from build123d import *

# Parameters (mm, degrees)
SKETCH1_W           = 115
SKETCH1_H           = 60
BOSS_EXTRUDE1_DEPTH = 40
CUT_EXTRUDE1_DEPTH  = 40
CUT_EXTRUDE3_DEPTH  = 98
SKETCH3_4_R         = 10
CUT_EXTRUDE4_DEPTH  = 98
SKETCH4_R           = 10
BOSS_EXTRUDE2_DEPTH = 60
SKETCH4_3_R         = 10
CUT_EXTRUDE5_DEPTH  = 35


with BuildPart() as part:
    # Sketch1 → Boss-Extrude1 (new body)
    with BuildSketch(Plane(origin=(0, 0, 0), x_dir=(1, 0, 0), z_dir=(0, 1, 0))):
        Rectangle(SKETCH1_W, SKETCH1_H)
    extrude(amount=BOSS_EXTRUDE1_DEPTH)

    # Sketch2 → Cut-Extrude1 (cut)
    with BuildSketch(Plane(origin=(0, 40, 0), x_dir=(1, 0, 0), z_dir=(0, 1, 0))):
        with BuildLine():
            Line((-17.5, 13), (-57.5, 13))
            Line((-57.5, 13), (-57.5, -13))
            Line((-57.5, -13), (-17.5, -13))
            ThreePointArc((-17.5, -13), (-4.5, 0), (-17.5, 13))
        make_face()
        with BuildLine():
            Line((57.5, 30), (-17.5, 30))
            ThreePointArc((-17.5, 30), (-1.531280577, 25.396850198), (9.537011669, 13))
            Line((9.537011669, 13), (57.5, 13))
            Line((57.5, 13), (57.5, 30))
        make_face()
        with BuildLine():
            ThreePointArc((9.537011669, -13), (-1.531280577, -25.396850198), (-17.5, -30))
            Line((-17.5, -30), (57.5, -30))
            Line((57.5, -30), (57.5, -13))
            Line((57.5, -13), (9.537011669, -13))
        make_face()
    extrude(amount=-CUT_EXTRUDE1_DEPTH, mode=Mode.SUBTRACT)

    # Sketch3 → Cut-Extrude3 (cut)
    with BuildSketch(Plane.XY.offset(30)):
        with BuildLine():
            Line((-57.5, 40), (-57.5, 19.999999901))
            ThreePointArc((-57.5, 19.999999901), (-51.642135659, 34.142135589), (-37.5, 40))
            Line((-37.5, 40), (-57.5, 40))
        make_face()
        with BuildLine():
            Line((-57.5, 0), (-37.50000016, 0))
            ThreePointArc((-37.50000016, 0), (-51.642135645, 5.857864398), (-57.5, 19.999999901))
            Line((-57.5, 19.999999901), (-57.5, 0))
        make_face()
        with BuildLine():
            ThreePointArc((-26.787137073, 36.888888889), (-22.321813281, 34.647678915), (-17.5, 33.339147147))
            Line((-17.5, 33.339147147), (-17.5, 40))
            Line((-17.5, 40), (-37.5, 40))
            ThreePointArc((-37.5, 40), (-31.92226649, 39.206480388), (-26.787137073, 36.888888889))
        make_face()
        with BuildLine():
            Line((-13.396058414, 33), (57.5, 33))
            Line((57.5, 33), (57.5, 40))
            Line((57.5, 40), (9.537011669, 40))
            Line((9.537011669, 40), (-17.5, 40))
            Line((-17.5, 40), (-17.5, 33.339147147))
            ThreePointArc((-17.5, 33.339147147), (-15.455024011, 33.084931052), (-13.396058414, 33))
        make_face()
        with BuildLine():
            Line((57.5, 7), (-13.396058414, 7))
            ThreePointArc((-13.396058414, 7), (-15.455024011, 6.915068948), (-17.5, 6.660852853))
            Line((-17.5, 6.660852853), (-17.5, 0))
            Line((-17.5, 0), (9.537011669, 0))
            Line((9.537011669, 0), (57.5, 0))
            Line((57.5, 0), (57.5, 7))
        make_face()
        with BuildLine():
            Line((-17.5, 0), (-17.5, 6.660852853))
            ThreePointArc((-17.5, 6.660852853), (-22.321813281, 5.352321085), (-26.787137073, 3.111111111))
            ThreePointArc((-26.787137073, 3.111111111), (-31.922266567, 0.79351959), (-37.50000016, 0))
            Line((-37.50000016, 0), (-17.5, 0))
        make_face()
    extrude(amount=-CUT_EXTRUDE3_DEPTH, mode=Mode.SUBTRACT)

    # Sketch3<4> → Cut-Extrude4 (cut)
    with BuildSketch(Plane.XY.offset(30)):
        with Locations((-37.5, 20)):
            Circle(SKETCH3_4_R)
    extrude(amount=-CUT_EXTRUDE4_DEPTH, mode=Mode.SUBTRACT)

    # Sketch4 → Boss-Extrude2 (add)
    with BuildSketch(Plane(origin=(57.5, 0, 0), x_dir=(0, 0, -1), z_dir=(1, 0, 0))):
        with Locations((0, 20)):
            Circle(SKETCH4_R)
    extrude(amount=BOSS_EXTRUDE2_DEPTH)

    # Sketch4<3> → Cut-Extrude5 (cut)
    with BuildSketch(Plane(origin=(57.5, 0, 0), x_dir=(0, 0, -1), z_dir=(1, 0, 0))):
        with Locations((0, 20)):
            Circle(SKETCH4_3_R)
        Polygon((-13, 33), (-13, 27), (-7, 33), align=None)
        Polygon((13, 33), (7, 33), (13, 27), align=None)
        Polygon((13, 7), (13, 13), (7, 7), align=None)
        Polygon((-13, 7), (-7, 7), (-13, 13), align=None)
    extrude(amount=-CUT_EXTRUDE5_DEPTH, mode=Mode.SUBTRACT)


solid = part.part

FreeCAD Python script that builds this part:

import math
import FreeCAD as App
import Part
import Sketcher
from FreeCAD import Vector

doc = App.newDocument("Part")
body = doc.addObject("PartDesign::Body", "Body")
body.AllowCompound = True

# Sketch on XZ plane
sketch1 = doc.addObject("Sketcher::SketchObject", "Sketch")
body.addObject(sketch1)
sketch1.AttachmentSupport = (doc.XZ_Plane, [""])
sketch1.MapMode = "FlatFace"
sketch1.addGeometry(Part.LineSegment(Vector(-58, -30, 0), Vector(-58, 30, 0)), False)
sketch1.addGeometry(Part.LineSegment(Vector(-58, 30, 0), Vector(58, 30, 0)), False)
sketch1.addGeometry(Part.LineSegment(Vector(58, 30, 0), Vector(58, -30, 0)), False)
sketch1.addGeometry(Part.LineSegment(Vector(58, -30, 0), Vector(-58, -30, 0)), False)
sketch1.addConstraint(Sketcher.Constraint("Coincident", 0, 2, 1, 1))
sketch1.addConstraint(Sketcher.Constraint("Coincident", 1, 2, 2, 1))
sketch1.addConstraint(Sketcher.Constraint("Coincident", 2, 2, 3, 1))
sketch1.addConstraint(Sketcher.Constraint("Coincident", 3, 2, 0, 1))
sketch1.addConstraint(Sketcher.Constraint("Vertical", 0))
sketch1.addConstraint(Sketcher.Constraint("Horizontal", 1))
sketch1.addConstraint(Sketcher.Constraint("Vertical", 2))
sketch1.addConstraint(Sketcher.Constraint("Horizontal", 3))
sketch1.addConstraint(Sketcher.Constraint("Symmetric", 0, 2, 2, 2, -1, 1))
sketch1.addConstraint(Sketcher.Constraint("DistanceX", 1, 1, 1, 2, 115.0))
sketch1.addConstraint(Sketcher.Constraint("DistanceY", 0, 1, 0, 2, 60.0))
pad1 = doc.addObject("PartDesign::Pad", "Pad")
body.addObject(pad1)
pad1.Profile = sketch1
pad1.Length = 40
pad1.Reversed = True

# Sketch on XZ plane
sketch2 = doc.addObject("Sketcher::SketchObject", "Sketch001")
body.addObject(sketch2)
sketch2.AttachmentSupport = (doc.XZ_Plane, [""])
sketch2.MapMode = "FlatFace"
sketch2.AttachmentOffset = App.Placement(Vector(0, 0, -40), App.Rotation())
sketch2.addGeometry(Part.LineSegment(Vector(-18, -13, 0), Vector(-58, -13, 0)), False)
sketch2.addGeometry(Part.LineSegment(Vector(-58, -13, 0), Vector(-58, 13, 0)), False)
sketch2.addGeometry(Part.LineSegment(Vector(-58, 13, 0), Vector(-18, 13, 0)), False)
sketch2.addGeometry(Part.ArcOfCircle(Part.Circle(Vector(-18, 0, 0), Vector(0, 0, 1), 13), math.radians(-90), math.radians(90)), False)
sketch2.addGeometry(Part.LineSegment(Vector(58, -30, 0), Vector(-18, -30, 0)), False)
sketch2.addGeometry(Part.ArcOfCircle(Part.Circle(Vector(-18, 0, 0), Vector(0, 0, 1), 30), math.radians(-90), math.radians(-26)), False)
sketch2.addGeometry(Part.LineSegment(Vector(10, -13, 0), Vector(58, -13, 0)), False)
sketch2.addGeometry(Part.LineSegment(Vector(58, -13, 0), Vector(58, -30, 0)), False)
sketch2.addGeometry(Part.ArcOfCircle(Part.Circle(Vector(-18, 0, 0), Vector(0, 0, 1), 30), math.radians(26), math.radians(90)), False)
sketch2.addGeometry(Part.LineSegment(Vector(-18, 30, 0), Vector(58, 30, 0)), False)
sketch2.addGeometry(Part.LineSegment(Vector(58, 30, 0), Vector(58, 13, 0)), False)
sketch2.addGeometry(Part.LineSegment(Vector(58, 13, 0), Vector(10, 13, 0)), False)
sketch2.addConstraint(Sketcher.Constraint("Coincident", 0, 2, 1, 1))
sketch2.addConstraint(Sketcher.Constraint("Coincident", 1, 2, 2, 1))
sketch2.addConstraint(Sketcher.Constraint("Tangent", 2, 2, 3, 2))
sketch2.addConstraint(Sketcher.Constraint("Tangent", 3, 1, 0, 1))
sketch2.addConstraint(Sketcher.Constraint("Tangent", 4, 2, 5, 1))
sketch2.addConstraint(Sketcher.Constraint("Coincident", 5, 2, 6, 1))
sketch2.addConstraint(Sketcher.Constraint("Coincident", 6, 2, 7, 1))
sketch2.addConstraint(Sketcher.Constraint("Coincident", 7, 2, 4, 1))
sketch2.addConstraint(Sketcher.Constraint("Tangent", 8, 2, 9, 1))
sketch2.addConstraint(Sketcher.Constraint("Coincident", 9, 2, 10, 1))
sketch2.addConstraint(Sketcher.Constraint("Coincident", 10, 2, 11, 1))
sketch2.addConstraint(Sketcher.Constraint("Coincident", 11, 2, 8, 1))
sketch2.addConstraint(Sketcher.Constraint("Horizontal", 0))
sketch2.addConstraint(Sketcher.Constraint("Vertical", 1))
sketch2.addConstraint(Sketcher.Constraint("Horizontal", 2))
sketch2.addConstraint(Sketcher.Constraint("Horizontal", 4))
sketch2.addConstraint(Sketcher.Constraint("Horizontal", 6))
sketch2.addConstraint(Sketcher.Constraint("Vertical", 7))
sketch2.addConstraint(Sketcher.Constraint("Horizontal", 9))
sketch2.addConstraint(Sketcher.Constraint("Vertical", 10))
sketch2.addConstraint(Sketcher.Constraint("Horizontal", 11))
sketch2.addConstraint(Sketcher.Constraint("Coincident", 5, 3, 3, 3))
sketch2.addConstraint(Sketcher.Constraint("Coincident", 8, 3, 3, 3))
sketch2.addConstraint(Sketcher.Constraint("Equal", 5, 8))
sketch2.addConstraint(Sketcher.Constraint("Symmetric", 1, 2, 6, 2, -1, 1))
sketch2.addConstraint(Sketcher.Constraint("Symmetric", 0, 2, 10, 2, -1, 1))
sketch2.addConstraint(Sketcher.Constraint("PointOnObject", 3, 3, -1))
sketch2.addConstraint(Sketcher.Constraint("Radius", 3, 13.0))
sketch2.addConstraint(Sketcher.Constraint("Radius", 5, 30.0))
sketch2.addConstraint(Sketcher.Constraint("DistanceX", 0, 2, 0, 1, 40.0))
sketch2.addConstraint(Sketcher.Constraint("DistanceX", 4, 2, 4, 1, 75.0))
pocket1 = doc.addObject("PartDesign::Pocket", "Pocket")
body.addObject(pocket1)
pocket1.Profile = sketch2
pocket1.Length = 40
pocket1.Reversed = True

# Sketch on XY plane
sketch3 = doc.addObject("Sketcher::SketchObject", "Sketch002")
body.addObject(sketch3)
sketch3.AttachmentSupport = (doc.XY_Plane, [""])
sketch3.MapMode = "FlatFace"
sketch3.AttachmentOffset = App.Placement(Vector(0, 0, 30), App.Rotation())
sketch3.addGeometry(Part.LineSegment(Vector(-57.5, 40, 0), Vector(-57.5, 20, 0)), False)
sketch3.addGeometry(Part.ArcOfCircle(Part.Circle(Vector(-37.5, 20, 0), Vector(0, 0, 1), 20), math.radians(90), math.radians(180)), False)
sketch3.addGeometry(Part.LineSegment(Vector(-37.5, 40, 0), Vector(-57.5, 40, 0)), False)
sketch3.addGeometry(Part.LineSegment(Vector(-57.5, 0, 0), Vector(-37.5, 0, 0)), False)
sketch3.addGeometry(Part.ArcOfCircle(Part.Circle(Vector(-37.5, 20, 0), Vector(0, 0, 1), 20), math.radians(-180), math.radians(-90)), False)
sketch3.addGeometry(Part.LineSegment(Vector(-57.5, 20, 0), Vector(-57.5, 0, 0)), False)
sketch3.addGeometry(Part.ArcOfCircle(Part.Circle(Vector(-13.4, 58, 0), Vector(0, 0, 1), 25), math.radians(-122), math.radians(-99)), False)
sketch3.addGeometry(Part.ArcOfCircle(Part.Circle(Vector(-13.4, 58, 0), Vector(0, 0, 1), 25), math.radians(-99.45), math.radians(-90)), False)
sketch3.addGeometry(Part.LineSegment(Vector(-13.4, 33, 0), Vector(57.5, 33, 0)), False)
sketch3.addGeometry(Part.LineSegment(Vector(57.5, 33, 0), Vector(57.5, 40, 0)), False)
sketch3.addGeometry(Part.LineSegment(Vector(57.5, 40, 0), Vector(-37.5, 40, 0)), False)
sketch3.addGeometry(Part.ArcOfCircle(Part.Circle(Vector(-37.5, 20, 0), Vector(0, 0, 1), 20), math.radians(58), math.radians(90)), False)
sketch3.addGeometry(Part.LineSegment(Vector(57.5, 7, 0), Vector(-13.4, 7, 0)), False)
sketch3.addGeometry(Part.ArcOfCircle(Part.Circle(Vector(-13.4, -18, 0), Vector(0, 0, 1), 25), math.radians(90), math.radians(99.45)), False)
sketch3.addGeometry(Part.ArcOfCircle(Part.Circle(Vector(-13.4, -18, 0), Vector(0, 0, 1), 25), math.radians(99), math.radians(122)), False)
sketch3.addGeometry(Part.ArcOfCircle(Part.Circle(Vector(-37.5, 20, 0), Vector(0, 0, 1), 20), math.radians(-90), math.radians(-58)), False)
sketch3.addGeometry(Part.LineSegment(Vector(-37.5, 0, 0), Vector(57.5, 0, 0)), False)
sketch3.addGeometry(Part.LineSegment(Vector(57.5, 0, 0), Vector(57.5, 7, 0)), False)
sketch3.addConstraint(Sketcher.Constraint("Tangent", 0, 2, 1, 2))
sketch3.addConstraint(Sketcher.Constraint("Tangent", 1, 1, 2, 1))
sketch3.addConstraint(Sketcher.Constraint("Coincident", 2, 2, 0, 1))
sketch3.addConstraint(Sketcher.Constraint("Tangent", 3, 2, 4, 2))
sketch3.addConstraint(Sketcher.Constraint("Tangent", 4, 1, 5, 1))
sketch3.addConstraint(Sketcher.Constraint("Coincident", 5, 2, 3, 1))
sketch3.addConstraint(Sketcher.Constraint("Tangent", 6, 2, 7, 1))
sketch3.addConstraint(Sketcher.Constraint("Tangent", 7, 2, 8, 1))
sketch3.addConstraint(Sketcher.Constraint("Coincident", 8, 2, 9, 1))
sketch3.addConstraint(Sketcher.Constraint("Coincident", 9, 2, 10, 1))
sketch3.addConstraint(Sketcher.Constraint("Tangent", 10, 2, 11, 2))
sketch3.addConstraint(Sketcher.Constraint("Tangent", 11, 1, 6, 1))
sketch3.addConstraint(Sketcher.Constraint("Tangent", 12, 2, 13, 1))
sketch3.addConstraint(Sketcher.Constraint("Tangent", 13, 2, 14, 1))
sketch3.addConstraint(Sketcher.Constraint("Tangent", 14, 2, 15, 2))
sketch3.addConstraint(Sketcher.Constraint("Tangent", 15, 1, 16, 1))
sketch3.addConstraint(Sketcher.Constraint("Coincident", 16, 2, 17, 1))
sketch3.addConstraint(Sketcher.Constraint("Coincident", 17, 2, 12, 1))
sketch3.addConstraint(Sketcher.Constraint("Vertical", 0))
sketch3.addConstraint(Sketcher.Constraint("Horizontal", 2))
sketch3.addConstraint(Sketcher.Constraint("Horizontal", 3))
sketch3.addConstraint(Sketcher.Constraint("Vertical", 5))
sketch3.addConstraint(Sketcher.Constraint("Horizontal", 8))
sketch3.addConstraint(Sketcher.Constraint("Vertical", 9))
sketch3.addConstraint(Sketcher.Constraint("Horizontal", 10))
sketch3.addConstraint(Sketcher.Constraint("Horizontal", 12))
sketch3.addConstraint(Sketcher.Constraint("Horizontal", 16))
sketch3.addConstraint(Sketcher.Constraint("Vertical", 17))
sketch3.addConstraint(Sketcher.Constraint("Coincident", 4, 3, 1, 3))
sketch3.addConstraint(Sketcher.Constraint("Coincident", 11, 3, 1, 3))
sketch3.addConstraint(Sketcher.Constraint("Coincident", 15, 3, 1, 3))
sketch3.addConstraint(Sketcher.Constraint("Equal", 1, 4))
sketch3.addConstraint(Sketcher.Constraint("Equal", 6, 7))
sketch3.addConstraint(Sketcher.Constraint("Equal", 4, 11))
sketch3.addConstraint(Sketcher.Constraint("Equal", 7, 13))
sketch3.addConstraint(Sketcher.Constraint("Equal", 13, 14))
sketch3.addConstraint(Sketcher.Constraint("Equal", 11, 15))
sketch3.addConstraint(Sketcher.Constraint("Symmetric", 5, 2, 16, 2, -1, 1))
sketch3.addConstraint(Sketcher.Constraint("Vertical", 7, 3, 13, 3))
sketch3.addConstraint(Sketcher.Constraint("Vertical", 6, 2, 13, 2))
sketch3.addConstraint(Sketcher.Constraint("Vertical", 9, 2, 16, 2))
sketch3.addConstraint(Sketcher.Constraint("Radius", 1, 20.0))
sketch3.addConstraint(Sketcher.Constraint("Radius", 6, 25.0))
sketch3.addConstraint(Sketcher.Constraint("DistanceX", 10, 2, 10, 1, 95.0))
sketch3.addConstraint(Sketcher.Constraint("DistanceY", 9, 1, 9, 2, 7.0))
sketch3.addConstraint(Sketcher.Constraint("DistanceX", 1, 1, 6, 2, 20.0))
pocket2 = doc.addObject("PartDesign::Pocket", "Pocket001")
body.addObject(pocket2)
pocket2.Profile = sketch3
pocket2.Length = 98

# Sketch on XY plane
sketch4 = doc.addObject("Sketcher::SketchObject", "Sketch003")
body.addObject(sketch4)
sketch4.AttachmentSupport = (doc.XY_Plane, [""])
sketch4.MapMode = "FlatFace"
sketch4.AttachmentOffset = App.Placement(Vector(0, 0, 30), App.Rotation())
sketch4.addGeometry(Part.Circle(Vector(-38, 20, 0), Vector(0, 0, 1), 10), False)
sketch4.addConstraint(Sketcher.Constraint("Diameter", 0, 20.0))
sketch4.addConstraint(Sketcher.Constraint("DistanceY", -1, 1, 0, 3, 20.0))
sketch4.addConstraint(Sketcher.Constraint("DistanceX", 0, 3, -1, 1, 37.5))
pocket3 = doc.addObject("PartDesign::Pocket", "Pocket002")
body.addObject(pocket3)
pocket3.Profile = sketch4
pocket3.Length = 98

# Sketch on YZ plane
sketch5 = doc.addObject("Sketcher::SketchObject", "Sketch004")
body.addObject(sketch5)
sketch5.AttachmentSupport = (doc.YZ_Plane, [""])
sketch5.MapMode = "FlatFace"
sketch5.AttachmentOffset = App.Placement(Vector(0, 0, 57.5), App.Rotation())
sketch5.addGeometry(Part.Circle(Vector(20, 0, 0), Vector(0, 0, 1), 10), False)
sketch5.addConstraint(Sketcher.Constraint("PointOnObject", 0, 3, -1))
sketch5.addConstraint(Sketcher.Constraint("Diameter", 0, 20.0))
sketch5.addConstraint(Sketcher.Constraint("DistanceX", -1, 1, 0, 3, 20.0))
pad2 = doc.addObject("PartDesign::Pad", "Pad001")
body.addObject(pad2)
pad2.Profile = sketch5
pad2.Length = 60

# Sketch on YZ plane
sketch6 = doc.addObject("Sketcher::SketchObject", "Sketch005")
body.addObject(sketch6)
sketch6.AttachmentSupport = (doc.YZ_Plane, [""])
sketch6.MapMode = "FlatFace"
sketch6.AttachmentOffset = App.Placement(Vector(0, 0, 57.5), App.Rotation())
sketch6.addGeometry(Part.Circle(Vector(20, 0, 0), Vector(0, 0, 1), 10), False)
sketch6.addGeometry(Part.LineSegment(Vector(33, 13, 0), Vector(27, 13, 0)), False)
sketch6.addGeometry(Part.LineSegment(Vector(27, 13, 0), Vector(33, 7, 0)), False)
sketch6.addGeometry(Part.LineSegment(Vector(33, 7, 0), Vector(33, 13, 0)), False)
sketch6.addGeometry(Part.LineSegment(Vector(33, -13, 0), Vector(33, -7, 0)), False)
sketch6.addGeometry(Part.LineSegment(Vector(33, -7, 0), Vector(27, -13, 0)), False)
sketch6.addGeometry(Part.LineSegment(Vector(27, -13, 0), Vector(33, -13, 0)), False)
sketch6.addGeometry(Part.LineSegment(Vector(7, -13, 0), Vector(13, -13, 0)), False)
sketch6.addGeometry(Part.LineSegment(Vector(13, -13, 0), Vector(7, -7, 0)), False)
sketch6.addGeometry(Part.LineSegment(Vector(7, -7, 0), Vector(7, -13, 0)), False)
sketch6.addGeometry(Part.LineSegment(Vector(7, 13, 0), Vector(7, 7, 0)), False)
sketch6.addGeometry(Part.LineSegment(Vector(7, 7, 0), Vector(13, 13, 0)), False)
sketch6.addGeometry(Part.LineSegment(Vector(13, 13, 0), Vector(7, 13, 0)), False)
sketch6.addConstraint(Sketcher.Constraint("Coincident", 1, 2, 2, 1))
sketch6.addConstraint(Sketcher.Constraint("Coincident", 2, 2, 3, 1))
sketch6.addConstraint(Sketcher.Constraint("Coincident", 3, 2, 1, 1))
sketch6.addConstraint(Sketcher.Constraint("Coincident", 4, 2, 5, 1))
sketch6.addConstraint(Sketcher.Constraint("Coincident", 5, 2, 6, 1))
sketch6.addConstraint(Sketcher.Constraint("Coincident", 6, 2, 4, 1))
sketch6.addConstraint(Sketcher.Constraint("Coincident", 7, 2, 8, 1))
sketch6.addConstraint(Sketcher.Constraint("Coincident", 8, 2, 9, 1))
sketch6.addConstraint(Sketcher.Constraint("Coincident", 9, 2, 7, 1))
sketch6.addConstraint(Sketcher.Constraint("Coincident", 10, 2, 11, 1))
sketch6.addConstraint(Sketcher.Constraint("Coincident", 11, 2, 12, 1))
sketch6.addConstraint(Sketcher.Constraint("Coincident", 12, 2, 10, 1))
sketch6.addConstraint(Sketcher.Constraint("Horizontal", 1))
sketch6.addConstraint(Sketcher.Constraint("Vertical", 3))
sketch6.addConstraint(Sketcher.Constraint("Vertical", 4))
sketch6.addConstraint(Sketcher.Constraint("Horizontal", 6))
sketch6.addConstraint(Sketcher.Constraint("Horizontal", 7))
sketch6.addConstraint(Sketcher.Constraint("Vertical", 9))
sketch6.addConstraint(Sketcher.Constraint("Vertical", 10))
sketch6.addConstraint(Sketcher.Constraint("Horizontal", 12))
sketch6.addConstraint(Sketcher.Constraint("Symmetric", 2, 2, 4, 2, -1))
sketch6.addConstraint(Sketcher.Constraint("Symmetric", 1, 2, 5, 2, -1))
sketch6.addConstraint(Sketcher.Constraint("Symmetric", 8, 2, 10, 2, -1))
sketch6.addConstraint(Sketcher.Constraint("Symmetric", 7, 2, 11, 2, -1))
sketch6.addConstraint(Sketcher.Constraint("PointOnObject", 0, 3, -1))
sketch6.addConstraint(Sketcher.Constraint("Perpendicular", 2, 5))
sketch6.addConstraint(Sketcher.Constraint("Perpendicular", 5, 8))
sketch6.addConstraint(Sketcher.Constraint("Horizontal", 6, 2, 7, 2))
sketch6.addConstraint(Sketcher.Constraint("Horizontal", 4, 2, 8, 2))
sketch6.addConstraint(Sketcher.Constraint("Diameter", 0, 20.0))
sketch6.addConstraint(Sketcher.Constraint("DistanceX", 1, 2, 1, 1, 6.0))
sketch6.addConstraint(Sketcher.Constraint("DistanceX", -1, 1, 0, 3, 20.0))
sketch6.addConstraint(Sketcher.Constraint("DistanceX", -1, 1, 1, 2, 27.0))
sketch6.addConstraint(Sketcher.Constraint("DistanceY", -1, 1, 1, 2, 13.0))
sketch6.addConstraint(Sketcher.Constraint("DistanceX", -1, 1, 7, 2, 13.0))
pocket4 = doc.addObject("PartDesign::Pocket", "Pocket003")
body.addObject(pocket4)
pocket4.Profile = sketch6
pocket4.Length = 35

doc.recompute()
